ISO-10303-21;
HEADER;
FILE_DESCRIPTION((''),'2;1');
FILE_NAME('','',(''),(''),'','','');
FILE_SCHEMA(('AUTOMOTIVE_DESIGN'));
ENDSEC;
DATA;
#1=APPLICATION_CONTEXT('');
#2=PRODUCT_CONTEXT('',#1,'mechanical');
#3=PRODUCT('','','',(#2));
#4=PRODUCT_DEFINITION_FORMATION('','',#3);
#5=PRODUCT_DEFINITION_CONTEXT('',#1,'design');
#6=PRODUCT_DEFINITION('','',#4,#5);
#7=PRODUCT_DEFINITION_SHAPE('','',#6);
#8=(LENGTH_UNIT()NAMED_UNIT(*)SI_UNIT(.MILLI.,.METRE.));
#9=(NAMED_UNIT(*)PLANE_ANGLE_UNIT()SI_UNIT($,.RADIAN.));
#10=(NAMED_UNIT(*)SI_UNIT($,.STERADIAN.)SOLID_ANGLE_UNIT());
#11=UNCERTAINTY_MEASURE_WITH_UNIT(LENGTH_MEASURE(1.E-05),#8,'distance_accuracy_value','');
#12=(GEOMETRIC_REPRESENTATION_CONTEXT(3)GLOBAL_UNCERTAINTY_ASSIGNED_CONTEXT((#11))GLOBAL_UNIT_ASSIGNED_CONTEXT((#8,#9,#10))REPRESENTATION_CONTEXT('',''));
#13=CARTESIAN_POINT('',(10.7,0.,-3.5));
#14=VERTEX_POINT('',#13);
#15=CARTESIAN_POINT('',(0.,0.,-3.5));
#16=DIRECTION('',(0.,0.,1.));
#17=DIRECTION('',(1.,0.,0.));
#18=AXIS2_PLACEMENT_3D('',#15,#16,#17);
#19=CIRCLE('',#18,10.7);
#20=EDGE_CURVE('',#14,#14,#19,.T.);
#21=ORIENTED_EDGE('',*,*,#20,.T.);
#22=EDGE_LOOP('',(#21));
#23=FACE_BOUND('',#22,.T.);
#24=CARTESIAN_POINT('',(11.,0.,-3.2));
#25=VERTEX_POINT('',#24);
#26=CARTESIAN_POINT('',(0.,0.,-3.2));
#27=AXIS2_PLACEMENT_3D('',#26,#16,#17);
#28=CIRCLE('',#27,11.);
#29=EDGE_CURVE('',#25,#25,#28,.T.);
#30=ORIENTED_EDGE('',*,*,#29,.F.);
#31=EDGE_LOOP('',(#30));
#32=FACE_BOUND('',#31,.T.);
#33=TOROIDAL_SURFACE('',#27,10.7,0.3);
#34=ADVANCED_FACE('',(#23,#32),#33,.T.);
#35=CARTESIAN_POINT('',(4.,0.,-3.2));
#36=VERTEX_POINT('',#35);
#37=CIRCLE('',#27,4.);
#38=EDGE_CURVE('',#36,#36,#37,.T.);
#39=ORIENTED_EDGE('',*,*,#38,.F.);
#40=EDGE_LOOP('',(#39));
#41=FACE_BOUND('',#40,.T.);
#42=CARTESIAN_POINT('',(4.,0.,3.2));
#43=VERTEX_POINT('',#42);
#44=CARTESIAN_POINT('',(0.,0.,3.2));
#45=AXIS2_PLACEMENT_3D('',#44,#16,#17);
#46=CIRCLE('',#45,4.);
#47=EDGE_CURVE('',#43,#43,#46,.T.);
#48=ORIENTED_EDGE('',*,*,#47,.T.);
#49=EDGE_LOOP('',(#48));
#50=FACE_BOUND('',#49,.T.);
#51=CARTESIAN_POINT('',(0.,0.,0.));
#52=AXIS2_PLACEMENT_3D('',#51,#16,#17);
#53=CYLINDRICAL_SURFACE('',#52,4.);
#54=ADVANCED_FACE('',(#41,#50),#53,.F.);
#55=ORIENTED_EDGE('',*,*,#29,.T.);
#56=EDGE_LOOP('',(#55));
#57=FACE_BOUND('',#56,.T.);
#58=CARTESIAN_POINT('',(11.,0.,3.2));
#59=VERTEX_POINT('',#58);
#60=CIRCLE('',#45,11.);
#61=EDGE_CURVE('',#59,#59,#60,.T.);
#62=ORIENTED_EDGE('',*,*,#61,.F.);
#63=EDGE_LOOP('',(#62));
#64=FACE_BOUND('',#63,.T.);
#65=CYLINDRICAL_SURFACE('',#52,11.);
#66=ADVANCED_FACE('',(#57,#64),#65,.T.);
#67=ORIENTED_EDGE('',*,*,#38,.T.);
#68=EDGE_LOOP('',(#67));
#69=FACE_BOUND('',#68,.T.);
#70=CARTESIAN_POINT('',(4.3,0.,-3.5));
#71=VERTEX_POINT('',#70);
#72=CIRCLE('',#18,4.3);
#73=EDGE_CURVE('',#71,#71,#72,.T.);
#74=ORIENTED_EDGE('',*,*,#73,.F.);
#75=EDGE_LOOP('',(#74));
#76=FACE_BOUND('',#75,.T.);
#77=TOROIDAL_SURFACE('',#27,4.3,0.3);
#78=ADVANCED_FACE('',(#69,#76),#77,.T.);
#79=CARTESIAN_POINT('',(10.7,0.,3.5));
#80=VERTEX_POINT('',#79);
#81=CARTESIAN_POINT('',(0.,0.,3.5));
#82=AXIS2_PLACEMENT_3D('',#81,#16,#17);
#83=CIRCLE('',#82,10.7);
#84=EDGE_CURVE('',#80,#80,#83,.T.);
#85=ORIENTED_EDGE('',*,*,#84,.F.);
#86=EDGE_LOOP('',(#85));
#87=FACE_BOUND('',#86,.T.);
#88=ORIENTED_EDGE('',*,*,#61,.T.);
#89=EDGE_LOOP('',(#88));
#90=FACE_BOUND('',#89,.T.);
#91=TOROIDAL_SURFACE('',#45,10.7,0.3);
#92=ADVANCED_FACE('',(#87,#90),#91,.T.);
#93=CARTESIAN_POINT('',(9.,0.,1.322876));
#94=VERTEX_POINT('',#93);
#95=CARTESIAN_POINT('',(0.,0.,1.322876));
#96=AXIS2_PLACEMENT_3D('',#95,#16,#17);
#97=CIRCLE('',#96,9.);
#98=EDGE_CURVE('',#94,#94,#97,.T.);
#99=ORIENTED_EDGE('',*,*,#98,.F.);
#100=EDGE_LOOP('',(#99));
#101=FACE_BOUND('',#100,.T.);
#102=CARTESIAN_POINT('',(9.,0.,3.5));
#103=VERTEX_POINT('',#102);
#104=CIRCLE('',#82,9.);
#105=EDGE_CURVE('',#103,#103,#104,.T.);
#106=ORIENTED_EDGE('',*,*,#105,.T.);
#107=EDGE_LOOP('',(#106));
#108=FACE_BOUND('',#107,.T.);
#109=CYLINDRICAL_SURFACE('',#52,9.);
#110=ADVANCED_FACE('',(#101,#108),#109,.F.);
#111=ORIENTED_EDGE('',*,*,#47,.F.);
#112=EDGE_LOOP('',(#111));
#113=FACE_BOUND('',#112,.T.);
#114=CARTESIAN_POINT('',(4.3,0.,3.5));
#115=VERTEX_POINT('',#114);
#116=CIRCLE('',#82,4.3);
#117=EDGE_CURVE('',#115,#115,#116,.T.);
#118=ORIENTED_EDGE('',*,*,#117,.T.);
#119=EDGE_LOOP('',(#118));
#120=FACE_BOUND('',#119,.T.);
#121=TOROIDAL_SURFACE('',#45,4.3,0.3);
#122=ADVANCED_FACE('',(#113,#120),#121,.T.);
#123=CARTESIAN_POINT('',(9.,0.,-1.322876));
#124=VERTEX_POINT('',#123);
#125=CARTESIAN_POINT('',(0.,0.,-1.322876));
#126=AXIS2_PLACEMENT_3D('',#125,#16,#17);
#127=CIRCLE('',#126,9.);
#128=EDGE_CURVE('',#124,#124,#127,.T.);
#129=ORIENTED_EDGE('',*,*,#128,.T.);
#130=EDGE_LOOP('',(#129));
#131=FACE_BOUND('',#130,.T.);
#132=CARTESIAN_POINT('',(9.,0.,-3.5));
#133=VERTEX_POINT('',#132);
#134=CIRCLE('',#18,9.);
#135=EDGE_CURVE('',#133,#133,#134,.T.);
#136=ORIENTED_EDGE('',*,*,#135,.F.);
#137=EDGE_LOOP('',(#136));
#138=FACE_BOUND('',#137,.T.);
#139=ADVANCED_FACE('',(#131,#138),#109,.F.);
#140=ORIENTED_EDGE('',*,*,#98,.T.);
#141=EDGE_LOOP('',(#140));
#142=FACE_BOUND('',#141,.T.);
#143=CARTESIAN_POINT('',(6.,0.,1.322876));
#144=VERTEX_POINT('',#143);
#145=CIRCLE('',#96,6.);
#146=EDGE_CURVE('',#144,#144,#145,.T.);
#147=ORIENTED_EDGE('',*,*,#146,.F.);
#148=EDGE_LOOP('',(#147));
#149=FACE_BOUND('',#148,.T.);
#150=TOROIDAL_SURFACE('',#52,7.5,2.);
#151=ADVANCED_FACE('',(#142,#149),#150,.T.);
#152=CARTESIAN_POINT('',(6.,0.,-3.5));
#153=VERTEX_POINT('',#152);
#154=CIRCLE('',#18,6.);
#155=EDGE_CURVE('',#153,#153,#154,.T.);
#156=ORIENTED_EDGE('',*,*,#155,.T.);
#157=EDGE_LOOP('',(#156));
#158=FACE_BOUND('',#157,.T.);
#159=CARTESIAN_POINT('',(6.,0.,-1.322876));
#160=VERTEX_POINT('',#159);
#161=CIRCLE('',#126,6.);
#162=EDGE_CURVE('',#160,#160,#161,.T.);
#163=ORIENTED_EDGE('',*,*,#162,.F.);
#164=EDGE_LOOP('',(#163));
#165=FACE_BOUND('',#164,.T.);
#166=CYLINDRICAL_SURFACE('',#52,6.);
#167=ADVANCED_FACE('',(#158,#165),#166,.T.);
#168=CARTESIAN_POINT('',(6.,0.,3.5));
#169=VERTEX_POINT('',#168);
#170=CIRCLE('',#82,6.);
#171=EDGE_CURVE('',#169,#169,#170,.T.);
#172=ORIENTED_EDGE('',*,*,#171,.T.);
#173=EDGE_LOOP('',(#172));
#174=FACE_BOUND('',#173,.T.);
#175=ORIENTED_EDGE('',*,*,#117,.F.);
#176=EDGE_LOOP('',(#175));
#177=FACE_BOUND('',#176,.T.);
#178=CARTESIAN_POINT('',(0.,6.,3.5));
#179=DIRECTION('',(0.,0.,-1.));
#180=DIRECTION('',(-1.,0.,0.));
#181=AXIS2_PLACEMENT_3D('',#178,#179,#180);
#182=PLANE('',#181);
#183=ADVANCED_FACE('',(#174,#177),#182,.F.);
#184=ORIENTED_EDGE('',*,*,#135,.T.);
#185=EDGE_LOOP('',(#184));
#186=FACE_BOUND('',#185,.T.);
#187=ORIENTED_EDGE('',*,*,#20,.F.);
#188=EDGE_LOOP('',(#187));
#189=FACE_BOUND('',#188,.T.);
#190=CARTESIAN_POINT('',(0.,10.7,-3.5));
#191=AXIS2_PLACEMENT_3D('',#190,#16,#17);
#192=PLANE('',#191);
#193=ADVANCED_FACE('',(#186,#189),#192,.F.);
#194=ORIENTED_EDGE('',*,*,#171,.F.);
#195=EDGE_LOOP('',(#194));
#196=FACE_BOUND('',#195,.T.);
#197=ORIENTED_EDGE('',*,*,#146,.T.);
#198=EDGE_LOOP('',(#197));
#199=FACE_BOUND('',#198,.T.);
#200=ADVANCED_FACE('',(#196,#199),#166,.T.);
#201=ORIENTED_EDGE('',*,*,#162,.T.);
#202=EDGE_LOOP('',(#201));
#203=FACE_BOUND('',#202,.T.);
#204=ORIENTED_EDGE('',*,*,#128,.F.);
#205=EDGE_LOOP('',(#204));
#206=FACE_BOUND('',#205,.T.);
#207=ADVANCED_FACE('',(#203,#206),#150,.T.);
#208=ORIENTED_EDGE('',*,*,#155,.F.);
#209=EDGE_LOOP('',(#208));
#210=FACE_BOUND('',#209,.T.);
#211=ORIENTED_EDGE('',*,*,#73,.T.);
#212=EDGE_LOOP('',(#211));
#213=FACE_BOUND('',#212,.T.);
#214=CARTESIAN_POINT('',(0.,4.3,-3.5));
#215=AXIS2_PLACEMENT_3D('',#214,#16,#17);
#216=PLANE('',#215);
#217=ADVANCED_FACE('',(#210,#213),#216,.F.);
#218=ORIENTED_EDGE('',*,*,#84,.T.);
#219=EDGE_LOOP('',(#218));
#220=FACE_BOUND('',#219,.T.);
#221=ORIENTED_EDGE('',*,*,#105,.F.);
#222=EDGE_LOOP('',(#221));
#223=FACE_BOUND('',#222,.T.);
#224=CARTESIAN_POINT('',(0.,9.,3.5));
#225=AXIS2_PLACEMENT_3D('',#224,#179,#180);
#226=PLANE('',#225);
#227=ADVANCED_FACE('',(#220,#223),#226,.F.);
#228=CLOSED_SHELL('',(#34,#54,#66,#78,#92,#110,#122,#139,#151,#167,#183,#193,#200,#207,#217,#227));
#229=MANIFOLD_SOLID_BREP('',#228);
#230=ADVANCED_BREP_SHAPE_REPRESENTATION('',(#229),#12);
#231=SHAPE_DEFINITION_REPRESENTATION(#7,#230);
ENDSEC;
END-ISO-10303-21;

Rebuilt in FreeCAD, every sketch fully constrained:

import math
import FreeCAD as App
import Part
import Sketcher

V = App.Vector
Q = App.Units.Quantity

doc = App.newDocument("Part")
body = doc.addObject("PartDesign::Body", "Body")

sketch1 = body.newObject("Sketcher::SketchObject", "Sketch")
sketch1.AttachmentSupport = (doc.getObject("YZ_Plane"), [""])
sketch1.MapMode = "FlatFace"
sketch1.addGeometry([
    Part.LineSegment(V(6, 3.5, 0), V(4.3, 3.5, 0)),
    Part.ArcOfCircle(Part.Circle(V(4.3, 3.2, 0), V(0, 0, 1), 0.3), math.radians(90), math.radians(180)),
    Part.LineSegment(V(4, 3.2, 0), V(4, -3.2, 0)),
    Part.ArcOfCircle(Part.Circle(V(4.3, -3.2, 0), V(0, 0, 1), 0.3), math.radians(-180), math.radians(-90)),
    Part.LineSegment(V(4.3, -3.5, 0), V(6, -3.5, 0)),
    Part.LineSegment(V(6, -3.5, 0), V(6, -1.322876, 0)),
    Part.ArcOfCircle(Part.Circle(V(7.5, 0, 0), V(0, 0, 1), 2), math.radians(-138.590378), math.radians(-41.409622)),
    Part.LineSegment(V(9, -1.322876, 0), V(9, -3.5, 0)),
    Part.LineSegment(V(9, -3.5, 0), V(10.7, -3.5, 0)),
    Part.ArcOfCircle(Part.Circle(V(10.7, -3.2, 0), V(0, 0, 1), 0.3), math.radians(-90), math.radians(0)),
    Part.LineSegment(V(11, -3.2, 0), V(11, 3.2, 0)),
    Part.ArcOfCircle(Part.Circle(V(10.7, 3.2, 0), V(0, 0, 1), 0.3), math.radians(0), math.radians(90)),
    Part.LineSegment(V(10.7, 3.5, 0), V(9, 3.5, 0)),
    Part.LineSegment(V(9, 3.5, 0), V(9, 1.322876, 0)),
    Part.ArcOfCircle(Part.Circle(V(7.5, 0, 0), V(0, 0, 1), 2), math.radians(41.409622), math.radians(138.590378)),
    Part.LineSegment(V(6, 1.322876, 0), V(6, 3.5, 0)),
], False)
sketch1.addConstraint([
    Sketcher.Constraint("Tangent", 0, 2, 1, 1),
    Sketcher.Constraint("Tangent", 1, 2, 2, 1),
    Sketcher.Constraint("Tangent", 2, 2, 3, 1),
    Sketcher.Constraint("Tangent", 3, 2, 4, 1),
    Sketcher.Constraint("Coincident", 4, 2, 5, 1),
    Sketcher.Constraint("Coincident", 5, 2, 6, 1),
    Sketcher.Constraint("Coincident", 6, 2, 7, 1),
    Sketcher.Constraint("Coincident", 7, 2, 8, 1),
    Sketcher.Constraint("Tangent", 8, 2, 9, 1),
    Sketcher.Constraint("Tangent", 9, 2, 10, 1),
    Sketcher.Constraint("Tangent", 10, 2, 11, 1),
    Sketcher.Constraint("Tangent", 11, 2, 12, 1),
    Sketcher.Constraint("Coincident", 12, 2, 13, 1),
    Sketcher.Constraint("Coincident", 13, 2, 14, 1),
    Sketcher.Constraint("Coincident", 14, 2, 15, 1),
    Sketcher.Constraint("Coincident", 15, 2, 0, 1),
    Sketcher.Constraint("Horizontal", 0),
    Sketcher.Constraint("Vertical", 2),
    Sketcher.Constraint("Horizontal", 4),
    Sketcher.Constraint("Vertical", 5),
    Sketcher.Constraint("Vertical", 7),
    Sketcher.Constraint("Horizontal", 8),
    Sketcher.Constraint("Vertical", 10),
    Sketcher.Constraint("Horizontal", 12),
    Sketcher.Constraint("Vertical", 13),
    Sketcher.Constraint("Vertical", 15),
    Sketcher.Constraint("Coincident", 14, 3, 6, 3),
    Sketcher.Constraint("Equal", 1, 3),
    Sketcher.Constraint("Equal", 3, 9),
    Sketcher.Constraint("Equal", 9, 11),
    Sketcher.Constraint("Equal", 6, 14),
    Sketcher.Constraint("Symmetric", 7, 2, 12, 2, -1),
    Sketcher.Constraint("Symmetric", 5, 2, 14, 2, -1),
    Sketcher.Constraint("Horizontal", 3, 3, 9, 3),
    Sketcher.Constraint("Horizontal", 1, 3, 11, 3),
    Sketcher.Constraint("Horizontal", 5, 2, 6, 2),
    Sketcher.Constraint("Equal", 4, 8),
    Sketcher.Constraint("Radius", 6, Q("2 mm")),
    Sketcher.Constraint("Radius", 1, Q("0.3 mm")),
    Sketcher.Constraint("DistanceX", 0, 2, 0, 1, Q("1.7 mm")),
    Sketcher.Constraint("DistanceY", 2, 2, 2, 1, Q("6.4 mm")),
    Sketcher.Constraint("DistanceX", -1, 1, 1, 2, Q("4 mm")),
    Sketcher.Constraint("DistanceX", -1, 1, 6, 2, Q("9 mm")),
])
revolution = body.newObject("PartDesign::Revolution", "Revolution")
revolution.Profile = sketch1
revolution.ReferenceAxis = (sketch1, ["V_Axis"])
revolution.Angle = 360

doc.recompute()
